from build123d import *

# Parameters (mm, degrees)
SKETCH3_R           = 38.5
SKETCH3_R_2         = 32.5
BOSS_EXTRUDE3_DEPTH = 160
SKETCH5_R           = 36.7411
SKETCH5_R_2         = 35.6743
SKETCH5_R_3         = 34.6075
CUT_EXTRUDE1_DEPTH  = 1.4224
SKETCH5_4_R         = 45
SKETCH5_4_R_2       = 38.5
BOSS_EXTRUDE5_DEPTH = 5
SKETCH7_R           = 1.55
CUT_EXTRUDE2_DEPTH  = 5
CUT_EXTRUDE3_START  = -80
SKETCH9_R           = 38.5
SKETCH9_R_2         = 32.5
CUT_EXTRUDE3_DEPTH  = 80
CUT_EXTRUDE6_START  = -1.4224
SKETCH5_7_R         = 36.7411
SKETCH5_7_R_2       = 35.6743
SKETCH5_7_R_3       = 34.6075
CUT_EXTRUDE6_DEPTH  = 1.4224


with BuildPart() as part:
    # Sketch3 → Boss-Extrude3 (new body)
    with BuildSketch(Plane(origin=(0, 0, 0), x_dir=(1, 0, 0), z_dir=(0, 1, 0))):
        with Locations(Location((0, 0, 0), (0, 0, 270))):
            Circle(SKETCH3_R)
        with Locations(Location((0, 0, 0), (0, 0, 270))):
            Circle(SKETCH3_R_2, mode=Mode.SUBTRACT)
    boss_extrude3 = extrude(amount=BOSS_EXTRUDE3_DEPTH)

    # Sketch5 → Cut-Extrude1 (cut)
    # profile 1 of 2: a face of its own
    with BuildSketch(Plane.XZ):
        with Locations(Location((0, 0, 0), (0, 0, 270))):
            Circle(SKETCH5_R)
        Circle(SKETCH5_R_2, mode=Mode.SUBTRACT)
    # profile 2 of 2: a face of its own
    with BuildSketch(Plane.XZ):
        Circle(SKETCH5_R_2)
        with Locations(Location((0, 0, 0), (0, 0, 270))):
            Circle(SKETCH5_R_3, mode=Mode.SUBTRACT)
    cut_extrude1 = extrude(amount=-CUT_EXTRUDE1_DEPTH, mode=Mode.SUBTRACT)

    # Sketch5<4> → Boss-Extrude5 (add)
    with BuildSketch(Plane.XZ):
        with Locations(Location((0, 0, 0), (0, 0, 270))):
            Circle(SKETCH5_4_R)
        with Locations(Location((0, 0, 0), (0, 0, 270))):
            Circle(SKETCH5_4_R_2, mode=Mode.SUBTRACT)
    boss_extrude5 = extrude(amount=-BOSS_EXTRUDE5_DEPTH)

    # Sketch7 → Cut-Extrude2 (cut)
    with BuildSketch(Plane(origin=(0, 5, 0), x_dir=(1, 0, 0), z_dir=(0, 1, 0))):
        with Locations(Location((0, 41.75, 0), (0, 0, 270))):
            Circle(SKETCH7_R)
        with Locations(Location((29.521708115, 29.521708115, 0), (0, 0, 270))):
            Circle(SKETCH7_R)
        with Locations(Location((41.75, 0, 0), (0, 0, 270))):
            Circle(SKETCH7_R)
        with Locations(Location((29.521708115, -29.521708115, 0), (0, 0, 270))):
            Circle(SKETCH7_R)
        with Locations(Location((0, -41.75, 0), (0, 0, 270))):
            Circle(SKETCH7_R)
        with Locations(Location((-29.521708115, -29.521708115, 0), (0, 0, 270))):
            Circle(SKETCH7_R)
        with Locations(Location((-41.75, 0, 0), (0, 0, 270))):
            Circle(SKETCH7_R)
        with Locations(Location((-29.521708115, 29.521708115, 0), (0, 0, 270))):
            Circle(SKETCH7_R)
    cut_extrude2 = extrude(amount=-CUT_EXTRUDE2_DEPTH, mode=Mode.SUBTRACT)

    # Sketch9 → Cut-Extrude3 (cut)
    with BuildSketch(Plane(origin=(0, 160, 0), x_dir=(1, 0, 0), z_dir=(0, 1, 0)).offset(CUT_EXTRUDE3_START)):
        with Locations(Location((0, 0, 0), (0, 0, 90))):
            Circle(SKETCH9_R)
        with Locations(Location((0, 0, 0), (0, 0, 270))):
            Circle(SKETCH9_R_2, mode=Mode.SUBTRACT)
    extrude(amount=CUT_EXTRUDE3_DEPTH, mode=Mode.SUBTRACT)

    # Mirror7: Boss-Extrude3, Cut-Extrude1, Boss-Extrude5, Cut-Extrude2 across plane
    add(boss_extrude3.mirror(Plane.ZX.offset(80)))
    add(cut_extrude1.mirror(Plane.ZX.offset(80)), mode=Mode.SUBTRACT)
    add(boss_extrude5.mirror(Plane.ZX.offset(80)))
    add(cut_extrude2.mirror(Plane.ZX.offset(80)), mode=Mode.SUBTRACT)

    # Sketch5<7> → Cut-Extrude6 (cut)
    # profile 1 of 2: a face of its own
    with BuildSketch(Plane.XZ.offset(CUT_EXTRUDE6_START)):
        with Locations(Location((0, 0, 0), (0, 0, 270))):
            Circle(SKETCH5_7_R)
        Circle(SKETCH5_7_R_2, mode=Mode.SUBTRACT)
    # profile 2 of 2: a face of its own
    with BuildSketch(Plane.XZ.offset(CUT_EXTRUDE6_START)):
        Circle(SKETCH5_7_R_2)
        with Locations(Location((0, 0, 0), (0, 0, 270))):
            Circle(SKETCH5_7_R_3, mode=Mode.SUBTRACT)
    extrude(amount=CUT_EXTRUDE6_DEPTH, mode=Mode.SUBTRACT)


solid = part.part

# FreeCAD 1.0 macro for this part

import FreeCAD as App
import Part
import Sketcher
from FreeCAD import Vector

doc = App.newDocument("Part")
body = doc.addObject("PartDesign::Body", "Body")

# Sketch on XZ plane
sketch1 = doc.addObject("Sketcher::SketchObject", "Sketch")
body.addObject(sketch1)
sketch1.AttachmentSupport = (doc.XZ_Plane, [""])
sketch1.MapMode = "FlatFace"
sketch1.addGeometry([
    Part.Circle(Vector(0, 0, 0), Vector(0, 0, 1), 38),
    Part.Circle(Vector(0, 0, 0), Vector(0, 0, 1), 32),
], False)
sketch1.addConstraint([
    Sketcher.Constraint("Coincident", 0, 3, -1, 1),
    Sketcher.Constraint("Coincident", 1, 3, -1, 1),
    Sketcher.Constraint("Diameter", 0, 77.0),
    Sketcher.Constraint("Diameter", 1, 65.0),
])
pad1 = doc.addObject("PartDesign::Pad", "Pad")
body.addObject(pad1)
pad1.Profile = sketch1
pad1.Length = 160
pad1.Reversed = True

# Sketch on XZ plane
sketch2 = doc.addObject("Sketcher::SketchObject", "Sketch001")
body.addObject(sketch2)
sketch2.AttachmentSupport = (doc.XZ_Plane, [""])
sketch2.MapMode = "FlatFace"
sketch2.addGeometry([
    Part.Circle(Vector(0, 0, 0), Vector(0, 0, 1), 37),
    Part.Circle(Vector(0, 0, 0), Vector(0, 0, 1), 35),
], False)
sketch2.addConstraint([
    Sketcher.Constraint("Coincident", 0, 3, -1, 1),
    Sketcher.Constraint("Coincident", 1, 3, -1, 1),
    Sketcher.Constraint("Diameter", 1, 69.215),
    Sketcher.Constraint("Diameter", 0, 73.4822),
])
pocket1 = doc.addObject("PartDesign::Pocket", "Pocket")
body.addObject(pocket1)
pocket1.Profile = sketch2
pocket1.Length = 1.4224

# Sketch on XZ plane
sketch3 = doc.addObject("Sketcher::SketchObject", "Sketch002")
body.addObject(sketch3)
sketch3.AttachmentSupport = (doc.XZ_Plane, [""])
sketch3.MapMode = "FlatFace"
sketch3.addGeometry([
    Part.Circle(Vector(0, 0, 0), Vector(0, 0, 1), 45),
    Part.Circle(Vector(0, 0, 0), Vector(0, 0, 1), 38),
], False)
sketch3.addConstraint([
    Sketcher.Constraint("Coincident", 0, 3, -1, 1),
    Sketcher.Constraint("Coincident", 1, 3, -1, 1),
    Sketcher.Constraint("Diameter", 0, 90.0),
    Sketcher.Constraint("Diameter", 1, 77.0),
])
pad2 = doc.addObject("PartDesign::Pad", "Pad001")
body.addObject(pad2)
pad2.Profile = sketch3
pad2.Length = 5
pad2.Reversed = True

# Sketch on XZ plane
sketch4 = doc.addObject("Sketcher::SketchObject", "Sketch003")
body.addObject(sketch4)
sketch4.AttachmentSupport = (doc.XZ_Plane, [""])
sketch4.MapMode = "FlatFace"
sketch4.AttachmentOffset = App.Placement(Vector(0, 0, -5), App.Rotation())
sketch4.addGeometry([
    Part.Circle(Vector(0, -41.8, 0), Vector(0, 0, 1), 1.6),  # 0
    Part.Circle(Vector(29.5, -29.5, 0), Vector(0, 0, 1), 1.6),  # 1
    Part.Circle(Vector(41.8, 0, 0), Vector(0, 0, 1), 1.6),  # 2
    Part.Circle(Vector(29.5, 29.5, 0), Vector(0, 0, 1), 1.6),  # 3
    Part.Circle(Vector(0, 41.8, 0), Vector(0, 0, 1), 1.6),  # 4
    Part.Circle(Vector(-29.5, 29.5, 0), Vector(0, 0, 1), 1.6),  # 5
    Part.Circle(Vector(-41.8, 0, 0), Vector(0, 0, 1), 1.6),  # 6
    Part.Circle(Vector(-29.5, -29.5, 0), Vector(0, 0, 1), 1.6),  # 7
], False)
sketch4.addConstraint([
    Sketcher.Constraint("Equal", 0, 1),
    Sketcher.Constraint("Equal", 1, 2),
    Sketcher.Constraint("Equal", 2, 3),
    Sketcher.Constraint("Equal", 3, 4),
    Sketcher.Constraint("Equal", 4, 5),
    Sketcher.Constraint("Equal", 5, 6),
    Sketcher.Constraint("Equal", 6, 7),
    Sketcher.Constraint("Symmetric", 0, 3, 4, 3, -1, 1),
    Sketcher.Constraint("Symmetric", 1, 3, 5, 3, -1, 1),
    Sketcher.Constraint("Symmetric", 2, 3, 6, 3, -1, 1),
    Sketcher.Constraint("Symmetric", 3, 3, 7, 3, -1, 1),
    Sketcher.Constraint("Symmetric", 3, 3, 5, 3, -2),
    Sketcher.Constraint("PointOnObject", 0, 3, -2),
    Sketcher.Constraint("PointOnObject", 2, 3, -1),
    Sketcher.Constraint("Diameter", 0, 3.1),
    Sketcher.Constraint("DistanceY", 0, 3, 4, 3, 83.5),
    Sketcher.Constraint("DistanceX", -1, 1, 2, 3, 41.75),
    Sketcher.Constraint("DistanceX", -1, 1, 1, 3, 29.521708),
    Sketcher.Constraint("DistanceY", 1, 3, -1, 1, 29.521708),
])
pocket2 = doc.addObject("PartDesign::Pocket", "Pocket001")
body.addObject(pocket2)
pocket2.Profile = sketch4
pocket2.Length = 5
pocket2.Reversed = True

# Sketch on XZ plane
sketch5 = doc.addObject("Sketcher::SketchObject", "Sketch004")
body.addObject(sketch5)
sketch5.AttachmentSupport = (doc.XZ_Plane, [""])
sketch5.MapMode = "FlatFace"
sketch5.AttachmentOffset = App.Placement(Vector(0, 0, -80), App.Rotation())
sketch5.addGeometry([
    Part.Circle(Vector(0, 0, 0), Vector(0, 0, 1), 38),
    Part.Circle(Vector(0, 0, 0), Vector(0, 0, 1), 32),
], False)
sketch5.addConstraint([
    Sketcher.Constraint("Coincident", 0, 3, -1, 1),
    Sketcher.Constraint("Coincident", 1, 3, -1, 1),
    Sketcher.Constraint("Diameter", 0, 77.0),
    Sketcher.Constraint("Diameter", 1, 65.0),
])
pocket3 = doc.addObject("PartDesign::Pocket", "Pocket002")
body.addObject(pocket3)
pocket3.Profile = sketch5
pocket3.Length = 80
doc.recompute()

datumplane = doc.addObject("PartDesign::Plane", "DatumPlane")
body.addObject(datumplane)
datumplane.AttachmentSupport = (doc.XZ_Plane, [""])
datumplane.MapMode = "FlatFace"
datumplane.AttachmentOffset = App.Placement(Vector(0, 0, -80), App.Rotation())
mirrored = doc.addObject("PartDesign::Mirrored", "Mirrored")
body.addObject(mirrored)
mirrored.Originals = [pad1, pocket1, pad2, pocket2]
mirrored.MirrorPlane = (datumplane, [""])
body.Tip = mirrored

# Sketch on XZ plane
sketch6 = doc.addObject("Sketcher::SketchObject", "Sketch005")
body.addObject(sketch6)
sketch6.AttachmentSupport = (doc.XZ_Plane, [""])
sketch6.MapMode = "FlatFace"
sketch6.AttachmentOffset = App.Placement(Vector(0, 0, -1.4224), App.Rotation())
sketch6.addGeometry([
    Part.Circle(Vector(0, 0, 0), Vector(0, 0, 1), 37),
    Part.Circle(Vector(0, 0, 0), Vector(0, 0, 1), 35),
], False)
sketch6.addConstraint([
    Sketcher.Constraint("Coincident", 0, 3, -1, 1),
    Sketcher.Constraint("Coincident", 1, 3, -1, 1),
    Sketcher.Constraint("Diameter", 1, 69.215),
    Sketcher.Constraint("Diameter", 0, 73.4822),
])
pocket4 = doc.addObject("PartDesign::Pocket", "Pocket003")
body.addObject(pocket4)
pocket4.Profile = sketch6
pocket4.Length = 1.4224
pocket4.Reversed = True

doc.recompute()
